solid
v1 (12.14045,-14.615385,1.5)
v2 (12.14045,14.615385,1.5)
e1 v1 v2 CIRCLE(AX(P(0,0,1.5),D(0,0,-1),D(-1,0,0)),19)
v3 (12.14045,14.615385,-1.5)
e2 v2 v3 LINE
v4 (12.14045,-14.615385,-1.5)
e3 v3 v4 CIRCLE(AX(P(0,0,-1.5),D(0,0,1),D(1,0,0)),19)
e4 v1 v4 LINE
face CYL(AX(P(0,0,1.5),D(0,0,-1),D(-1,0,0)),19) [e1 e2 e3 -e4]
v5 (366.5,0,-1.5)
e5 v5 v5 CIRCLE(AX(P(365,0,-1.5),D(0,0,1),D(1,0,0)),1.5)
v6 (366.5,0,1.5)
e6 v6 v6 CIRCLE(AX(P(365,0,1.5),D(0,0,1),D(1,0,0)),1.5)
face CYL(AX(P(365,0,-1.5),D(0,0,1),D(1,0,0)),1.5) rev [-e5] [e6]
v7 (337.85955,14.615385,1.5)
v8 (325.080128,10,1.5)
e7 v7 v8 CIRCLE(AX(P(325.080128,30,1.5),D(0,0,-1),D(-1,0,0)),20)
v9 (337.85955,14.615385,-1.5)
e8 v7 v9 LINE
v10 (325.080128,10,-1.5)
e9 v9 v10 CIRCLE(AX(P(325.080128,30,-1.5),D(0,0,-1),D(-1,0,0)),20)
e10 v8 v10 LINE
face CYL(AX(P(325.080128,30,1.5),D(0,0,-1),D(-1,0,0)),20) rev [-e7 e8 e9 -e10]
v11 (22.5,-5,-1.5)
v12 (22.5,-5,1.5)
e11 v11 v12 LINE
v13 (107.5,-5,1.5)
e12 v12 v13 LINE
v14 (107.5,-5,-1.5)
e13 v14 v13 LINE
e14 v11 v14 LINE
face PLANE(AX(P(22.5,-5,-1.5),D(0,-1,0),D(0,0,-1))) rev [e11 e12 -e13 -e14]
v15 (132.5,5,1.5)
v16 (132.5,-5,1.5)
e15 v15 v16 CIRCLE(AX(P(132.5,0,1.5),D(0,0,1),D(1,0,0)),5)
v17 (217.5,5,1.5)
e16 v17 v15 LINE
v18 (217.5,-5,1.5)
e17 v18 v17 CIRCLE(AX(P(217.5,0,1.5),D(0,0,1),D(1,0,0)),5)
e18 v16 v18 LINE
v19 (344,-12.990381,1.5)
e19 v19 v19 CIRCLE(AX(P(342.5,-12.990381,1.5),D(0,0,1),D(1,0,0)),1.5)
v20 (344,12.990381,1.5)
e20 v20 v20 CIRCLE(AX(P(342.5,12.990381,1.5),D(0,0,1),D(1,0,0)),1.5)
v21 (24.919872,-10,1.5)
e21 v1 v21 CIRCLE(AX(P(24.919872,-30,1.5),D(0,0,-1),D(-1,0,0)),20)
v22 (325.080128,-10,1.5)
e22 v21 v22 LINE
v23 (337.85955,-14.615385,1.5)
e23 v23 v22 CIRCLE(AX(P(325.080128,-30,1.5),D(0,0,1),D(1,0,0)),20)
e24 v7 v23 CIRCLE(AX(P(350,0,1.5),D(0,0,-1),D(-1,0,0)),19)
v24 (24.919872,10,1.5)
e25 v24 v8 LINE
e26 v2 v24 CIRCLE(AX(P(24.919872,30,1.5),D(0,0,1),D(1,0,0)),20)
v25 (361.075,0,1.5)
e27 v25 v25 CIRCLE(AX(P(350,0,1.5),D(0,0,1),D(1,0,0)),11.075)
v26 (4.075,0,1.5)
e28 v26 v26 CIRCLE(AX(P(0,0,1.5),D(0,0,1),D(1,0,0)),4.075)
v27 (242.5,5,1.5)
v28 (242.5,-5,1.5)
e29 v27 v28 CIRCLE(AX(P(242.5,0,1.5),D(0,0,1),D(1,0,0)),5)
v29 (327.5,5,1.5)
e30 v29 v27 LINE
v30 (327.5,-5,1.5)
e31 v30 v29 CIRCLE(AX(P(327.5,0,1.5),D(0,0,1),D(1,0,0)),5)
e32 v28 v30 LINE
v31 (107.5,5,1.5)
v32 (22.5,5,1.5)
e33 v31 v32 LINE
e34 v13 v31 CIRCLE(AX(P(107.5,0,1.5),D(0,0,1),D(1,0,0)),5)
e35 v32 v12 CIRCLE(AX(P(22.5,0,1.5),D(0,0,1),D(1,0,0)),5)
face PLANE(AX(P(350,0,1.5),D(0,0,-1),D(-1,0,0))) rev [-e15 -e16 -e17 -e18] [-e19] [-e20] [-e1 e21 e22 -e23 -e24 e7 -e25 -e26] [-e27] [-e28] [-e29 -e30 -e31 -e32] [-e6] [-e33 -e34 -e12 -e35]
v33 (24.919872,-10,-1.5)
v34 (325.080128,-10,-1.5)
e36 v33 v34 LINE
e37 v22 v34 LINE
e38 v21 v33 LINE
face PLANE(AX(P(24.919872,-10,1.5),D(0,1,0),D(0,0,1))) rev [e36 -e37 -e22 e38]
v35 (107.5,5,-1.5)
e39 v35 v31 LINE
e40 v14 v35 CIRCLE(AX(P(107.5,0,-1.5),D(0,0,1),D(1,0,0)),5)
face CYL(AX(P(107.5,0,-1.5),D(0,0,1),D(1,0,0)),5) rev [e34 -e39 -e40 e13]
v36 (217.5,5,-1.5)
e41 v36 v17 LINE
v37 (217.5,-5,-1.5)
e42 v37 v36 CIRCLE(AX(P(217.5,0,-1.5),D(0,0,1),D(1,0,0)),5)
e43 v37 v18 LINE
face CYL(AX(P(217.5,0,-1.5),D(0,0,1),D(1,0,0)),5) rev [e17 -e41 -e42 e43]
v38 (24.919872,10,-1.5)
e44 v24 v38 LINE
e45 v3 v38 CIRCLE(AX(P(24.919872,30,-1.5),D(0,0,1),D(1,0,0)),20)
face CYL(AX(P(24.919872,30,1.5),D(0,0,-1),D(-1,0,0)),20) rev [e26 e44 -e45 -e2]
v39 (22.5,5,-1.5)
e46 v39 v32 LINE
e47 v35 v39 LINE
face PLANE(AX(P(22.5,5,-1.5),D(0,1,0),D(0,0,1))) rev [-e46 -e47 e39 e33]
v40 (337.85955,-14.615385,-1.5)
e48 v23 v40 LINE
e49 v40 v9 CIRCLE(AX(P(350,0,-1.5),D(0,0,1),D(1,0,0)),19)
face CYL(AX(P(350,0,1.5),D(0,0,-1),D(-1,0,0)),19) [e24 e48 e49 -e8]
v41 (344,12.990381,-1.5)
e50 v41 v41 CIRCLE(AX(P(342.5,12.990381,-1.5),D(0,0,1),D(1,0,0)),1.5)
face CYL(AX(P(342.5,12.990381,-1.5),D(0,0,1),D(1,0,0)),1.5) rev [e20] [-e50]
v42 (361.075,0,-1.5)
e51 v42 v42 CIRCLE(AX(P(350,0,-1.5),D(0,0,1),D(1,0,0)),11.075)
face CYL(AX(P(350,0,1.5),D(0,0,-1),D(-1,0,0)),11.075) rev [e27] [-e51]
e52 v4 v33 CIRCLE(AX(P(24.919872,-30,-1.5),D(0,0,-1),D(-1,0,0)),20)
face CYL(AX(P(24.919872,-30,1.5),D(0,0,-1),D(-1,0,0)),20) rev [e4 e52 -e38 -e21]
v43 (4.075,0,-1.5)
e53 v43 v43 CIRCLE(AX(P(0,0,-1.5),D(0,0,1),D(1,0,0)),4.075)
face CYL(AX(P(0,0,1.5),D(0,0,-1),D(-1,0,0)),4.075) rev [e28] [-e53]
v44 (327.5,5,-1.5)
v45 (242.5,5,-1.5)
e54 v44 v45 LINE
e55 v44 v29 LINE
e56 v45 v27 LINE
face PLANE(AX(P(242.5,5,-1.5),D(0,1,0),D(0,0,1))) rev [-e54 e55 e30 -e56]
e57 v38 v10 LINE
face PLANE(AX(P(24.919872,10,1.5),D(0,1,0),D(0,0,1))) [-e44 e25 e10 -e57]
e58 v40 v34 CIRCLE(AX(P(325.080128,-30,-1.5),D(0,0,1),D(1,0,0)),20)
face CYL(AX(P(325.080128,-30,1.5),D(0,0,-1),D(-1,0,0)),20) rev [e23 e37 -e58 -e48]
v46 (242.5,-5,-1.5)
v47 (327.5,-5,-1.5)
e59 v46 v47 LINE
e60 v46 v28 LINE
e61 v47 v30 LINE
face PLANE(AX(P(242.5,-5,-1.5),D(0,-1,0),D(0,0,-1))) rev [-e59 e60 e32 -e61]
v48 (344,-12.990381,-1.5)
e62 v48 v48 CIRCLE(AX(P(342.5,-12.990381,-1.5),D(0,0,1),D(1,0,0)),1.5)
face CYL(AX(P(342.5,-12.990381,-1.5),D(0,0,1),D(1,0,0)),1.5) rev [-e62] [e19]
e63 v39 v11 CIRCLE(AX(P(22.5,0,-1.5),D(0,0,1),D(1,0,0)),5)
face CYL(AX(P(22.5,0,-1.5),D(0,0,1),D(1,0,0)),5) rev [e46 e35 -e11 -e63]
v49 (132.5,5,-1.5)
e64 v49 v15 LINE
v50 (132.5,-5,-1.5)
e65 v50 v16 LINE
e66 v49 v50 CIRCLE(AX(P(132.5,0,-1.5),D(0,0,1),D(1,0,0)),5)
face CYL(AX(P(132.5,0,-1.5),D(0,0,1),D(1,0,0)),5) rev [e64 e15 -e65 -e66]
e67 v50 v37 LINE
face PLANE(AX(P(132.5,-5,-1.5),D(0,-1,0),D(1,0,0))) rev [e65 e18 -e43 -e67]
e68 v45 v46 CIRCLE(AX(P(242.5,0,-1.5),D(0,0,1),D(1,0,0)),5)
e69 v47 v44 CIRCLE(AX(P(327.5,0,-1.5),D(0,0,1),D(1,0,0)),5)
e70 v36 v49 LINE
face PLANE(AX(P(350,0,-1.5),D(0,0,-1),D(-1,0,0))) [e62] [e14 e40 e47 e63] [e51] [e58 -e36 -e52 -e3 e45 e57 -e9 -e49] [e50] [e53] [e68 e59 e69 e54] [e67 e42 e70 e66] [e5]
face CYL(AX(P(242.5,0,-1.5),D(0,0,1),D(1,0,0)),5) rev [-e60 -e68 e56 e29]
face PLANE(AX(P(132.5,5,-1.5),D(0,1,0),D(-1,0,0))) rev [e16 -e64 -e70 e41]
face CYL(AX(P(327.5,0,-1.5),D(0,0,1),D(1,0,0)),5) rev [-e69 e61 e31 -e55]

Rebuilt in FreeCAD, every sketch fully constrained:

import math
import FreeCAD as App
import Part
import Sketcher

V = App.Vector

doc = App.newDocument("Part")
body = doc.addObject("PartDesign::Body", "Body")

sketch1 = body.newObject("Sketcher::SketchObject", "Sketch")
sketch1.AttachmentSupport = (doc.getObject("XY_Plane"), [""])
sketch1.MapMode = "FlatFace"
sketch1.addGeometry([
    Part.LineSegment(V(325.1, 10, 0), V(24.9, 10, 0)),
    Part.ArcOfCircle(Part.Circle(V(24.9, 30, 0), V(0, 0, 1), 20), math.radians(-130), math.radians(-90)),
    Part.ArcOfCircle(Part.Circle(V(0, 0, 0), V(0, 0, 1), 19), math.radians(50), math.radians(90)),
    Part.ArcOfCircle(Part.Circle(V(0, 0, 0), V(0, 0, 1), 19), math.radians(90), math.radians(270)),
    Part.ArcOfCircle(Part.Circle(V(0, 0, 0), V(0, 0, 1), 19), math.radians(-90), math.radians(-50)),
    Part.ArcOfCircle(Part.Circle(V(24.9, -30, 0), V(0, 0, 1), 20), math.radians(90), math.radians(130)),
    Part.LineSegment(V(24.9, -10, 0), V(325.1, -10, 0)),
    Part.ArcOfCircle(Part.Circle(V(325.1, -30, 0), V(0, 0, 1), 20), math.radians(50), math.radians(90)),
    Part.ArcOfCircle(Part.Circle(V(350, 0, 0), V(0, 0, 1), 19), math.radians(-130), math.radians(-90)),
    Part.ArcOfCircle(Part.Circle(V(350, 0, 0), V(0, 0, 1), 19), math.radians(-90), math.radians(90)),
    Part.ArcOfCircle(Part.Circle(V(350, 0, 0), V(0, 0, 1), 19), math.radians(90), math.radians(130)),
    Part.ArcOfCircle(Part.Circle(V(325.1, 30, 0), V(0, 0, 1), 20), math.radians(-90), math.radians(-50)),
    Part.Circle(V(350, 0, 0), V(0, 0, 1), 11.1),
    Part.Circle(V(0, 0, 0), V(0, 0, 1), 4.1),
], False)
sketch1.addConstraint([
    Sketcher.Constraint("Tangent", 0, 2, 1, 2),
    Sketcher.Constraint("Tangent", 1, 1, 2, 1),
    Sketcher.Constraint("Tangent", 2, 2, 3, 1),
    Sketcher.Constraint("Tangent", 3, 2, 4, 1),
    Sketcher.Constraint("Tangent", 4, 2, 5, 2),
    Sketcher.Constraint("Tangent", 5, 1, 6, 1),
    Sketcher.Constraint("Tangent", 6, 2, 7, 2),
    Sketcher.Constraint("Tangent", 7, 1, 8, 1),
    Sketcher.Constraint("Tangent", 8, 2, 9, 1),
    Sketcher.Constraint("Tangent", 9, 2, 10, 1),
    Sketcher.Constraint("Tangent", 10, 2, 11, 2),
    Sketcher.Constraint("Tangent", 11, 1, 0, 1),
    Sketcher.Constraint("Horizontal", 0),
    Sketcher.Constraint("Horizontal", 6),
    Sketcher.Constraint("Coincident", 2, 3, -1, 1),
    Sketcher.Constraint("Coincident", 13, 3, -1, 1),
    Sketcher.Constraint("Coincident", 12, 3, 8, 3),
    Sketcher.Constraint("Equal", 2, 3),
    Sketcher.Constraint("Equal", 3, 4),
    Sketcher.Constraint("Equal", 1, 5),
    Sketcher.Constraint("Equal", 5, 7),
    Sketcher.Constraint("Equal", 4, 8),
    Sketcher.Constraint("Equal", 8, 9),
    Sketcher.Constraint("Equal", 9, 10),
    Sketcher.Constraint("Equal", 7, 11),
    Sketcher.Constraint("Symmetric", 7, 3, 11, 3, -1),
    Sketcher.Constraint("PointOnObject", 2, 2, -2),
    Sketcher.Constraint("PointOnObject", 3, 2, -2),
    Sketcher.Constraint("Vertical", 12, 3, 8, 2),
    Sketcher.Constraint("Vertical", 8, 2, 9, 2),
    Sketcher.Constraint("Radius", 1, 20.0),
    Sketcher.Constraint("Radius", 2, 19.0),
    Sketcher.Constraint("Diameter", 12, 22.15),
    Sketcher.Constraint("Diameter", 13, 8.15),
    Sketcher.Constraint("DistanceY", -1, 1, 1, 3, 30.0),
    Sketcher.Constraint("DistanceX", -1, 1, 8, 3, 350.0),
])
pad1 = body.newObject("PartDesign::Pad", "Pad")
pad1.Profile = sketch1
pad1.Length = 3
pad1.Midplane = True

sketch2 = body.newObject("Sketcher::SketchObject", "Sketch001")
sketch2.AttachmentSupport = (doc.getObject("XY_Plane"), [""])
sketch2.MapMode = "FlatFace"
sketch2.addGeometry([
    Part.Circle(V(365, 0, 0), V(0, 0, 1), 1.5),
    Part.Circle(V(342.5, -13, 0), V(0, 0, 1), 1.5),
    Part.Circle(V(342.5, 13, 0), V(0, 0, 1), 1.5),
], False)
sketch2.addConstraint([
    Sketcher.Constraint("Equal", 0, 1),
    Sketcher.Constraint("Equal", 1, 2),
    Sketcher.Constraint("Symmetric", 1, 3, 2, 3, -1),
    Sketcher.Constraint("PointOnObject", 0, 3, -1),
    Sketcher.Constraint("Diameter", 0, 3.0),
    Sketcher.Constraint("DistanceX", -1, 1, 0, 3, 365.0),
    Sketcher.Constraint("DistanceX", -1, 1, 1, 3, 342.5),
    Sketcher.Constraint("DistanceY", 1, 3, -1, 1, 12.990381),
])
pocket1 = body.newObject("PartDesign::Pocket", "Pocket")
pocket1.Profile = sketch2
pocket1.Type = "ThroughAll"
pocket1.Midplane = True

sketch3 = body.newObject("Sketcher::SketchObject", "Sketch002")
sketch3.AttachmentSupport = (doc.getObject("XY_Plane"), [""])
sketch3.MapMode = "FlatFace"
sketch3.addGeometry([
    Part.LineSegment(V(108, 5, 0), V(22, 5, 0)),
    Part.ArcOfCircle(Part.Circle(V(22, 0, 0), V(0, 0, 1), 5), math.radians(90), math.radians(270)),
    Part.LineSegment(V(22, -5, 0), V(108, -5, 0)),
    Part.ArcOfCircle(Part.Circle(V(108, 0, 0), V(0, 0, 1), 5), math.radians(-90), math.radians(90)),
    Part.LineSegment(V(218, 5, 0), V(132, 5, 0)),
    Part.ArcOfCircle(Part.Circle(V(132, 0, 0), V(0, 0, 1), 5), math.radians(90), math.radians(270)),
    Part.LineSegment(V(132, -5, 0), V(218, -5, 0)),
    Part.ArcOfCircle(Part.Circle(V(218, 0, 0), V(0, 0, 1), 5), math.radians(-90), math.radians(90)),
    Part.LineSegment(V(328, 5, 0), V(242, 5, 0)),
    Part.ArcOfCircle(Part.Circle(V(242, 0, 0), V(0, 0, 1), 5), math.radians(90), math.radians(270)),
    Part.LineSegment(V(242, -5, 0), V(328, -5, 0)),
    Part.ArcOfCircle(Part.Circle(V(328, 0, 0), V(0, 0, 1), 5), math.radians(-90), math.radians(90)),
], False)
sketch3.addConstraint([
    Sketcher.Constraint("Tangent", 0, 2, 1, 1),
    Sketcher.Constraint("Tangent", 1, 2, 2, 1),
    Sketcher.Constraint("Tangent", 2, 2, 3, 1),
    Sketcher.Constraint("Tangent", 3, 2, 0, 1),
    Sketcher.Constraint("Tangent", 4, 2, 5, 1),
    Sketcher.Constraint("Tangent", 5, 2, 6, 1),
    Sketcher.Constraint("Tangent", 6, 2, 7, 1),
    Sketcher.Constraint("Tangent", 7, 2, 4, 1),
    Sketcher.Constraint("Tangent", 8, 2, 9, 1),
    Sketcher.Constraint("Tangent", 9, 2, 10, 1),
    Sketcher.Constraint("Tangent", 10, 2, 11, 1),
    Sketcher.Constraint("Tangent", 11, 2, 8, 1),
    Sketcher.Constraint("Horizontal", 0),
    Sketcher.Constraint("Horizontal", 2),
    Sketcher.Constraint("Horizontal", 4),
    Sketcher.Constraint("Horizontal", 6),
    Sketcher.Constraint("Horizontal", 8),
    Sketcher.Constraint("Horizontal", 10),
    Sketcher.Constraint("Equal", 3, 5),
    Sketcher.Constraint("Equal", 7, 9),
    Sketcher.Constraint("PointOnObject", 1, 3, -1),
    Sketcher.Constraint("PointOnObject", 5, 3, -1),
    Sketcher.Constraint("PointOnObject", 9, 3, -1),
    Sketcher.Constraint("Equal", 2, 4),
    Sketcher.Constraint("Equal", 6, 8),
    Sketcher.Constraint("Radius", 1, 5.0),
    Sketcher.Constraint("DistanceX", 0, 2, 0, 1, 85.0),
    Sketcher.Constraint("DistanceX", 3, 3, 5, 3, 25.0),
    Sketcher.Constraint("DistanceX", 7, 3, 9, 3, 25.0),
    Sketcher.Constraint("DistanceX", -1, 1, 1, 3, 22.5),
])
pocket2 = body.newObject("PartDesign::Pocket", "Pocket001")
pocket2.Profile = sketch3
pocket2.Type = "ThroughAll"
pocket2.Midplane = True

doc.recompute()
